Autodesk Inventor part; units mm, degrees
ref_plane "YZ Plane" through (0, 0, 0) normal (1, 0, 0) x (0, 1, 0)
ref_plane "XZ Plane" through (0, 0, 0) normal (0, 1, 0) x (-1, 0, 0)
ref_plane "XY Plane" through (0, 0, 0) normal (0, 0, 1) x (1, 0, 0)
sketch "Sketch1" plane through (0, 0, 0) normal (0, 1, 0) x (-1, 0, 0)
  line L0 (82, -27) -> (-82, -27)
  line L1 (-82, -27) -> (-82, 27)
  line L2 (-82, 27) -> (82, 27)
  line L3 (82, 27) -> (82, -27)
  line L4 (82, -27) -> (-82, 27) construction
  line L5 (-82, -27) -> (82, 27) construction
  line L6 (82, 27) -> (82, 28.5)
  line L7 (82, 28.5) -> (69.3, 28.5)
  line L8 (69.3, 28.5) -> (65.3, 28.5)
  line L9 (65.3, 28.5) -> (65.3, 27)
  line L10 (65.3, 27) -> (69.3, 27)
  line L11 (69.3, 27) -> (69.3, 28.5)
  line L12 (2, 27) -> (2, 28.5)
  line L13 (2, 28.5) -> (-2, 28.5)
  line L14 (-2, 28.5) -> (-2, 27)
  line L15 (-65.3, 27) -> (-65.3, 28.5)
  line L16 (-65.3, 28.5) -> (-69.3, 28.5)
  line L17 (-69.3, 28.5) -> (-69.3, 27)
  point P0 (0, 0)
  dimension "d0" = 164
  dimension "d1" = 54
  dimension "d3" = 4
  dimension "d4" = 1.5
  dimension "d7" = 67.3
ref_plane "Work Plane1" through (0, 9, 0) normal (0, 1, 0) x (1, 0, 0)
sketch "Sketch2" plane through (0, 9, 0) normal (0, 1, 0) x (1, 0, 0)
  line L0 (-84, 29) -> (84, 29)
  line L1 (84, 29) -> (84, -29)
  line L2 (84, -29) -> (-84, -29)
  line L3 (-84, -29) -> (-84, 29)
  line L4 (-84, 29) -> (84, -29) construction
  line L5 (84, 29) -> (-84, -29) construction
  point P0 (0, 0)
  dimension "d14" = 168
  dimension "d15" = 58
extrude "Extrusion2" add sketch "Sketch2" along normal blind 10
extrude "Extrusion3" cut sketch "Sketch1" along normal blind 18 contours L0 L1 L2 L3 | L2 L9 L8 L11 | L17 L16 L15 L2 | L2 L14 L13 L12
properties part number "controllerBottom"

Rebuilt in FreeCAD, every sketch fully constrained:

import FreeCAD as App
import Part
import Sketcher
from FreeCAD import Vector
Q = App.Units.Quantity

doc = App.newDocument("Part")
params = doc.addObject("Spreadsheet::Sheet", "Params")
for row, (alias, value) in enumerate([
    ("sketch1_width", "168 mm"),
    ("sketch1_height", "58 mm"),
    ("pad1_length", "10 mm"),
    ("sketch2_width", "164 mm"),
    ("sketch2_width2", "4 mm"),
    ("sketch2_height", "54 mm"),
    ("sketch2_height2", "1.5 mm"),
    ("pocket1_length", "18 mm"),
], start=1):
    params.set(f"A{row}", alias)
    params.set(f"B{row}", "=" + value)
    params.setAlias(f"B{row}", alias)

body = doc.addObject("PartDesign::Body", "Body")

sketch1 = body.newObject("Sketcher::SketchObject", "Sketch")
sketch1.AttachmentSupport = (doc.getObject("XZ_Plane"), [""])
sketch1.MapMode = "FlatFace"
sketch1.AttachmentOffset = App.Placement(Vector(0, 0, -9), App.Rotation())
sketch1.addGeometry([
    Part.LineSegment(Vector(84, -29, 0), Vector(-84, -29, 0)),
    Part.LineSegment(Vector(-84, -29, 0), Vector(-84, 29, 0)),
    Part.LineSegment(Vector(-84, 29, 0), Vector(84, 29, 0)),
    Part.LineSegment(Vector(84, 29, 0), Vector(84, -29, 0)),
], False)
sketch1.addConstraint([
    Sketcher.Constraint("Coincident", 0, 2, 1, 1),
    Sketcher.Constraint("Coincident", 1, 2, 2, 1),
    Sketcher.Constraint("Coincident", 2, 2, 3, 1),
    Sketcher.Constraint("Coincident", 3, 2, 0, 1),
    Sketcher.Constraint("Horizontal", 0),
    Sketcher.Constraint("Vertical", 1),
    Sketcher.Constraint("Horizontal", 2),
    Sketcher.Constraint("Vertical", 3),
    Sketcher.Constraint("Symmetric", 0, 2, 2, 2, -1, 1),
    Sketcher.Constraint("DistanceX", 0, 2, 0, 1, Q("168 mm")),
    Sketcher.Constraint("DistanceY", 1, 1, 1, 2, Q("58 mm")),
])
sketch1.setExpression("Constraints[9]", "Params.sketch1_width")
sketch1.setExpression("Constraints[10]", "Params.sketch1_height")
pad1 = body.newObject("PartDesign::Pad", "Pad")
pad1.Profile = sketch1
pad1.setExpression("Length", "Params.pad1_length")
pad1.Reversed = True

sketch2 = body.newObject("Sketcher::SketchObject", "Sketch001")
sketch2.AttachmentSupport = (doc.getObject("XZ_Plane"), [""])
sketch2.MapMode = "FlatFace"
sketch2.addGeometry([
    Part.LineSegment(Vector(82, -27, 0), Vector(-82, -27, 0)),
    Part.LineSegment(Vector(-82, -27, 0), Vector(-82, 27, 0)),
    Part.LineSegment(Vector(-82, 27, 0), Vector(-69.3, 27, 0)),
    Part.LineSegment(Vector(-69.3, 27, 0), Vector(-69.3, 28.5, 0)),
    Part.LineSegment(Vector(-69.3, 28.5, 0), Vector(-65.3, 28.5, 0)),
    Part.LineSegment(Vector(-65.3, 28.5, 0), Vector(-65.3, 27, 0)),
    Part.LineSegment(Vector(-65.3, 27, 0), Vector(-2, 27, 0)),
    Part.LineSegment(Vector(-2, 27, 0), Vector(-2, 28.5, 0)),
    Part.LineSegment(Vector(-2, 28.5, 0), Vector(2, 28.5, 0)),
    Part.LineSegment(Vector(2, 28.5, 0), Vector(2, 27, 0)),
    Part.LineSegment(Vector(2, 27, 0), Vector(65.3, 27, 0)),
    Part.LineSegment(Vector(65.3, 27, 0), Vector(65.3, 28.5, 0)),
    Part.LineSegment(Vector(65.3, 28.5, 0), Vector(69.3, 28.5, 0)),
    Part.LineSegment(Vector(69.3, 28.5, 0), Vector(69.3, 27, 0)),
    Part.LineSegment(Vector(69.3, 27, 0), Vector(82, 27, 0)),
    Part.LineSegment(Vector(82, 27, 0), Vector(82, -27, 0)),
], False)
sketch2.addConstraint([
    Sketcher.Constraint("Coincident", 0, 2, 1, 1),
    Sketcher.Constraint("Coincident", 1, 2, 2, 1),
    Sketcher.Constraint("Coincident", 2, 2, 3, 1),
    Sketcher.Constraint("Coincident", 3, 2, 4, 1),
    Sketcher.Constraint("Coincident", 4, 2, 5, 1),
    Sketcher.Constraint("Coincident", 5, 2, 6, 1),
    Sketcher.Constraint("Coincident", 6, 2, 7, 1),
    Sketcher.Constraint("Coincident", 7, 2, 8, 1),
    Sketcher.Constraint("Coincident", 8, 2, 9, 1),
    Sketcher.Constraint("Coincident", 9, 2, 10, 1),
    Sketcher.Constraint("Coincident", 10, 2, 11, 1),
    Sketcher.Constraint("Coincident", 11, 2, 12, 1),
    Sketcher.Constraint("Coincident", 12, 2, 13, 1),
    Sketcher.Constraint("Coincident", 13, 2, 14, 1),
    Sketcher.Constraint("Coincident", 14, 2, 15, 1),
    Sketcher.Constraint("Coincident", 15, 2, 0, 1),
    Sketcher.Constraint("Horizontal", 0),
    Sketcher.Constraint("Vertical", 1),
    Sketcher.Constraint("Horizontal", 2),
    Sketcher.Constraint("Vertical", 3),
    Sketcher.Constraint("Horizontal", 4),
    Sketcher.Constraint("Vertical", 5),
    Sketcher.Constraint("Horizontal", 6),
    Sketcher.Constraint("Vertical", 7),
    Sketcher.Constraint("Horizontal", 8),
    Sketcher.Constraint("Vertical", 9),
    Sketcher.Constraint("Horizontal", 10),
    Sketcher.Constraint("Vertical", 11),
    Sketcher.Constraint("Horizontal", 12),
    Sketcher.Constraint("Vertical", 13),
    Sketcher.Constraint("Horizontal", 14),
    Sketcher.Constraint("Vertical", 15),
    Sketcher.Constraint("Symmetric", 0, 2, 14, 2, -1, 1),
    Sketcher.Constraint("Symmetric", 6, 2, 9, 2, -2),
    Sketcher.Constraint("Symmetric", 4, 2, 11, 2, -2),
    Sketcher.Constraint("Symmetric", 2, 2, 13, 2, -2),
    Sketcher.Constraint("Horizontal", 2, 2, 5, 2),
    Sketcher.Constraint("Horizontal", 4, 2, 7, 2),
    Sketcher.Constraint("Equal", 4, 8),
    Sketcher.Constraint("DistanceX", 0, 2, 0, 1, Q("164 mm")),
    Sketcher.Constraint("DistanceX", 4, 1, 4, 2, Q("4 mm")),
    Sketcher.Constraint("DistanceY", 1, 1, 1, 2, Q("54 mm")),
    Sketcher.Constraint("DistanceY", 3, 1, 3, 2, Q("1.5 mm")),
    Sketcher.Constraint("DistanceX", 2, 2, 6, 2, Q("67.3 mm")),
])
sketch2.setExpression("Constraints[39]", "Params.sketch2_width")
sketch2.setExpression("Constraints[40]", "Params.sketch2_width2")
sketch2.setExpression("Constraints[41]", "Params.sketch2_height")
sketch2.setExpression("Constraints[42]", "Params.sketch2_height2")
pocket1 = body.newObject("PartDesign::Pocket", "Pocket")
pocket1.Profile = sketch2
pocket1.setExpression("Length", "Params.pocket1_length")

doc.recompute()
